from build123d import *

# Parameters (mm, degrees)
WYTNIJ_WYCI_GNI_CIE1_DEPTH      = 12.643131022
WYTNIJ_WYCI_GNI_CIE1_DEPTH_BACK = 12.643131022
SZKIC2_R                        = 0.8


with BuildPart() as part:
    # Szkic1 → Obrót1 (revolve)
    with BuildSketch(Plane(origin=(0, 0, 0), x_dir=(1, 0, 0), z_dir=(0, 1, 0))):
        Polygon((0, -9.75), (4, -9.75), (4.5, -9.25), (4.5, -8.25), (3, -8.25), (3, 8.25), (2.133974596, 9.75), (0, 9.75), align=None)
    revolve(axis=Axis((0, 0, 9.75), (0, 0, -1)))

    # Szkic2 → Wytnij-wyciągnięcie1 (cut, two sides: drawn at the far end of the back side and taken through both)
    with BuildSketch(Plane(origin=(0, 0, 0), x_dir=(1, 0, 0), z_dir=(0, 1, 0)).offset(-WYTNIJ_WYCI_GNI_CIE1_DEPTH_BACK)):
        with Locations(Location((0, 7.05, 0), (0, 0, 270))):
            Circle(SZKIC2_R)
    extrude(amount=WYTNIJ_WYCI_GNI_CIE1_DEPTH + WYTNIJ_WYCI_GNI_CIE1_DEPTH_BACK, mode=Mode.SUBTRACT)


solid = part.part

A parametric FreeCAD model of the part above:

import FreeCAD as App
import Part
import Sketcher
from FreeCAD import Vector
Q = App.Units.Quantity

doc = App.newDocument("Part")
body = doc.addObject("PartDesign::Body", "Body")

# Sketch on XZ plane
sketch1 = body.newObject("Sketcher::SketchObject", "Sketch")
sketch1.AttachmentSupport = (doc.getObject("XZ_Plane"), [""])
sketch1.MapMode = "FlatFace"
sketch1.addGeometry(Part.LineSegment(Vector(0, 9.75, 0), Vector(4, 9.75, 0)), False)
sketch1.addGeometry(Part.LineSegment(Vector(4, 9.75, 0), Vector(4.5, 9.25, 0)), False)
sketch1.addGeometry(Part.LineSegment(Vector(4.5, 9.25, 0), Vector(4.5, 8.25, 0)), False)
sketch1.addGeometry(Part.LineSegment(Vector(4.5, 8.25, 0), Vector(3, 8.25, 0)), False)
sketch1.addGeometry(Part.LineSegment(Vector(3, 8.25, 0), Vector(3, -8.25, 0)), False)
sketch1.addGeometry(Part.LineSegment(Vector(3, -8.25, 0), Vector(2.133975, -9.75, 0)), False)
sketch1.addGeometry(Part.LineSegment(Vector(2.133975, -9.75, 0), Vector(0, -9.75, 0)), False)
sketch1.addGeometry(Part.LineSegment(Vector(0, -9.75, 0), Vector(0, 9.75, 0)), False)
sketch1.addConstraint(Sketcher.Constraint("Coincident", 0, 2, 1, 1))
sketch1.addConstraint(Sketcher.Constraint("Coincident", 1, 2, 2, 1))
sketch1.addConstraint(Sketcher.Constraint("Coincident", 2, 2, 3, 1))
sketch1.addConstraint(Sketcher.Constraint("Coincident", 3, 2, 4, 1))
sketch1.addConstraint(Sketcher.Constraint("Coincident", 4, 2, 5, 1))
sketch1.addConstraint(Sketcher.Constraint("Coincident", 5, 2, 6, 1))
sketch1.addConstraint(Sketcher.Constraint("Coincident", 6, 2, 7, 1))
sketch1.addConstraint(Sketcher.Constraint("Coincident", 7, 2, 0, 1))
sketch1.addConstraint(Sketcher.Constraint("Horizontal", 0))
sketch1.addConstraint(Sketcher.Constraint("Vertical", 2))
sketch1.addConstraint(Sketcher.Constraint("Horizontal", 3))
sketch1.addConstraint(Sketcher.Constraint("Vertical", 4))
sketch1.addConstraint(Sketcher.Constraint("Horizontal", 6))
sketch1.addConstraint(Sketcher.Constraint("Vertical", 7))
sketch1.addConstraint(Sketcher.Constraint("Symmetric", 6, 2, 7, 2, -1, 1))
sketch1.addConstraint(Sketcher.Constraint("DistanceX", 0, 1, 0, 2, 4.0))
sketch1.addConstraint(Sketcher.Constraint("DistanceY", 2, 2, 2, 1, 1.0))
sketch1.addConstraint(Sketcher.Constraint("Angle", 1, Q("-45 deg")))
sketch1.addConstraint(Sketcher.Constraint("Angle", 5, Q("-120 deg")))
sketch1.addConstraint(Sketcher.Constraint("DistanceX", 3, 2, 3, 1, 1.5))
sketch1.addConstraint(Sketcher.Constraint("DistanceY", 4, 2, 4, 1, 16.5))
sketch1.addConstraint(Sketcher.Constraint("DistanceY", 7, 1, 7, 2, 19.5))
sketch1.addConstraint(Sketcher.Constraint("DistanceX", -1, 1, 3, 2, 3.0))
revolution = body.newObject("PartDesign::Revolution", "Revolution")
revolution.Profile = sketch1
revolution.ReferenceAxis = (sketch1, ["V_Axis"])
revolution.Angle = 360

# Sketch on XZ plane
sketch2 = body.newObject("Sketcher::SketchObject", "Sketch001")
sketch2.AttachmentSupport = (doc.getObject("XZ_Plane"), [""])
sketch2.MapMode = "FlatFace"
sketch2.addGeometry(Part.Circle(Vector(0, -7.05, 0), Vector(0, 0, 1), 0.8), False)
sketch2.addConstraint(Sketcher.Constraint("PointOnObject", 0, 3, -2))
sketch2.addConstraint(Sketcher.Constraint("Diameter", 0, 1.6))
sketch2.addConstraint(Sketcher.Constraint("DistanceY", 0, 3, -1, 1, 7.05))
pocket1 = body.newObject("PartDesign::Pocket", "Pocket")
pocket1.Profile = sketch2
pocket1.Type = "ThroughAll"
pocket1.Midplane = True

doc.recompute()
